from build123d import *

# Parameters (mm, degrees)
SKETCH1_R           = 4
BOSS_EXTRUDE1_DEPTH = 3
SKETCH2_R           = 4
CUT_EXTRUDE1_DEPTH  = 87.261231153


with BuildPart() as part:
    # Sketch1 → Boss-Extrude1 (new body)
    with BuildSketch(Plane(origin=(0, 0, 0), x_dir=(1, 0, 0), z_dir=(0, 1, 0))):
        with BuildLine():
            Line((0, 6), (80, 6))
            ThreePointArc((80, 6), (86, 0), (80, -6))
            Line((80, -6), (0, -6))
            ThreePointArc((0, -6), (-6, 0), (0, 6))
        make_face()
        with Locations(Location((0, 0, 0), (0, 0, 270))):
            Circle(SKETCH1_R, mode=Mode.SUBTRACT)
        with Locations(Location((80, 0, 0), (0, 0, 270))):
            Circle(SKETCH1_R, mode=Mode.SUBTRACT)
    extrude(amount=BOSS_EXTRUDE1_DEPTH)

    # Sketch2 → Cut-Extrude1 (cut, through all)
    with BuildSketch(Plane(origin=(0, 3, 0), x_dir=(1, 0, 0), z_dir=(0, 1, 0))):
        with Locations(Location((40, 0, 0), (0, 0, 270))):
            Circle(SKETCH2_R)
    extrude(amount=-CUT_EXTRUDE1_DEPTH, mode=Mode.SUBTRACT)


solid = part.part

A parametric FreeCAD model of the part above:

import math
import FreeCAD as App
import Part
import Sketcher

V = App.Vector
Q = App.Units.Quantity

doc = App.newDocument("Part")
params = doc.addObject("Spreadsheet::Sheet", "Params")
for row, (alias, value) in enumerate([
    ("sketch1_diameter", "8 mm"),
    ("sketch1_radius", "6 mm"),
    ("sketch1_width", "80 mm"),
    ("pad1_length", "3 mm"),
    ("sketch2_diameter", "8 mm"),
], start=1):
    params.set(f"A{row}", alias)
    params.set(f"B{row}", "=" + value)
    params.setAlias(f"B{row}", alias)

body = doc.addObject("PartDesign::Body", "Body")

# Sketch on XZ plane
sketch1 = doc.addObject("Sketcher::SketchObject", "Sketch")
body.addObject(sketch1)
sketch1.AttachmentSupport = (doc.XZ_Plane, [""])
sketch1.MapMode = "FlatFace"
sketch1.addGeometry([
    Part.LineSegment(V(80, -6, 0), V(0, -6, 0)),  # 0
    Part.ArcOfCircle(Part.Circle(V(0, 0, 0), V(0, 0, 1), 6), math.radians(90), math.radians(270)),  # 1
    Part.LineSegment(V(0, 6, 0), V(80, 6, 0)),  # 2
    Part.ArcOfCircle(Part.Circle(V(80, 0, 0), V(0, 0, 1), 6), math.radians(-90), math.radians(90)),  # 3
    Part.Circle(V(80, 0, 0), V(0, 0, 1), 4),  # 4
    Part.Circle(V(0, 0, 0), V(0, 0, 1), 4),  # 5
], False)
sketch1.addConstraint([
    Sketcher.Constraint("Tangent", 0, 2, 1, 2),
    Sketcher.Constraint("Tangent", 1, 1, 2, 1),
    Sketcher.Constraint("Tangent", 2, 2, 3, 2),
    Sketcher.Constraint("Tangent", 3, 1, 0, 1),
    Sketcher.Constraint("Horizontal", 0),
    Sketcher.Constraint("Horizontal", 2),
    Sketcher.Constraint("Coincident", 1, 3, -1, 1),
    Sketcher.Constraint("Coincident", 5, 3, -1, 1),
    Sketcher.Constraint("Coincident", 4, 3, 3, 3),
    Sketcher.Constraint("Equal", 4, 5),
    Sketcher.Constraint("Diameter", 4, Q("8 mm")),
    Sketcher.Constraint("Radius", 1, Q("6 mm")),
    Sketcher.Constraint("DistanceX", 0, 2, 0, 1, Q("80 mm")),
])
sketch1.setExpression("Constraints[10]", "Params.sketch1_diameter")
sketch1.setExpression("Constraints[11]", "Params.sketch1_radius")
sketch1.setExpression("Constraints[12]", "Params.sketch1_width")
pad1 = doc.addObject("PartDesign::Pad", "Pad")
body.addObject(pad1)
pad1.Profile = sketch1
pad1.setExpression("Length", "Params.pad1_length")
pad1.Reversed = True

# Sketch on XZ plane
sketch2 = doc.addObject("Sketcher::SketchObject", "Sketch001")
body.addObject(sketch2)
sketch2.AttachmentSupport = (doc.XZ_Plane, [""])
sketch2.MapMode = "FlatFace"
sketch2.AttachmentOffset = App.Placement(V(0, 0, -3), App.Rotation())
sketch2.addGeometry(Part.Circle(V(40, 0, 0), V(0, 0, 1), 4), False)
sketch2.addConstraint([
    Sketcher.Constraint("PointOnObject", 0, 3, -1),
    Sketcher.Constraint("Diameter", 0, Q("8 mm")),
    Sketcher.Constraint("DistanceX", -1, 1, 0, 3, Q("40 mm")),
])
sketch2.setExpression("Constraints[1]", "Params.sketch2_diameter")
pocket1 = doc.addObject("PartDesign::Pocket", "Pocket")
body.addObject(pocket1)
pocket1.Profile = sketch2
pocket1.Type = "ThroughAll"
pocket1.Reversed = True

doc.recompute()
